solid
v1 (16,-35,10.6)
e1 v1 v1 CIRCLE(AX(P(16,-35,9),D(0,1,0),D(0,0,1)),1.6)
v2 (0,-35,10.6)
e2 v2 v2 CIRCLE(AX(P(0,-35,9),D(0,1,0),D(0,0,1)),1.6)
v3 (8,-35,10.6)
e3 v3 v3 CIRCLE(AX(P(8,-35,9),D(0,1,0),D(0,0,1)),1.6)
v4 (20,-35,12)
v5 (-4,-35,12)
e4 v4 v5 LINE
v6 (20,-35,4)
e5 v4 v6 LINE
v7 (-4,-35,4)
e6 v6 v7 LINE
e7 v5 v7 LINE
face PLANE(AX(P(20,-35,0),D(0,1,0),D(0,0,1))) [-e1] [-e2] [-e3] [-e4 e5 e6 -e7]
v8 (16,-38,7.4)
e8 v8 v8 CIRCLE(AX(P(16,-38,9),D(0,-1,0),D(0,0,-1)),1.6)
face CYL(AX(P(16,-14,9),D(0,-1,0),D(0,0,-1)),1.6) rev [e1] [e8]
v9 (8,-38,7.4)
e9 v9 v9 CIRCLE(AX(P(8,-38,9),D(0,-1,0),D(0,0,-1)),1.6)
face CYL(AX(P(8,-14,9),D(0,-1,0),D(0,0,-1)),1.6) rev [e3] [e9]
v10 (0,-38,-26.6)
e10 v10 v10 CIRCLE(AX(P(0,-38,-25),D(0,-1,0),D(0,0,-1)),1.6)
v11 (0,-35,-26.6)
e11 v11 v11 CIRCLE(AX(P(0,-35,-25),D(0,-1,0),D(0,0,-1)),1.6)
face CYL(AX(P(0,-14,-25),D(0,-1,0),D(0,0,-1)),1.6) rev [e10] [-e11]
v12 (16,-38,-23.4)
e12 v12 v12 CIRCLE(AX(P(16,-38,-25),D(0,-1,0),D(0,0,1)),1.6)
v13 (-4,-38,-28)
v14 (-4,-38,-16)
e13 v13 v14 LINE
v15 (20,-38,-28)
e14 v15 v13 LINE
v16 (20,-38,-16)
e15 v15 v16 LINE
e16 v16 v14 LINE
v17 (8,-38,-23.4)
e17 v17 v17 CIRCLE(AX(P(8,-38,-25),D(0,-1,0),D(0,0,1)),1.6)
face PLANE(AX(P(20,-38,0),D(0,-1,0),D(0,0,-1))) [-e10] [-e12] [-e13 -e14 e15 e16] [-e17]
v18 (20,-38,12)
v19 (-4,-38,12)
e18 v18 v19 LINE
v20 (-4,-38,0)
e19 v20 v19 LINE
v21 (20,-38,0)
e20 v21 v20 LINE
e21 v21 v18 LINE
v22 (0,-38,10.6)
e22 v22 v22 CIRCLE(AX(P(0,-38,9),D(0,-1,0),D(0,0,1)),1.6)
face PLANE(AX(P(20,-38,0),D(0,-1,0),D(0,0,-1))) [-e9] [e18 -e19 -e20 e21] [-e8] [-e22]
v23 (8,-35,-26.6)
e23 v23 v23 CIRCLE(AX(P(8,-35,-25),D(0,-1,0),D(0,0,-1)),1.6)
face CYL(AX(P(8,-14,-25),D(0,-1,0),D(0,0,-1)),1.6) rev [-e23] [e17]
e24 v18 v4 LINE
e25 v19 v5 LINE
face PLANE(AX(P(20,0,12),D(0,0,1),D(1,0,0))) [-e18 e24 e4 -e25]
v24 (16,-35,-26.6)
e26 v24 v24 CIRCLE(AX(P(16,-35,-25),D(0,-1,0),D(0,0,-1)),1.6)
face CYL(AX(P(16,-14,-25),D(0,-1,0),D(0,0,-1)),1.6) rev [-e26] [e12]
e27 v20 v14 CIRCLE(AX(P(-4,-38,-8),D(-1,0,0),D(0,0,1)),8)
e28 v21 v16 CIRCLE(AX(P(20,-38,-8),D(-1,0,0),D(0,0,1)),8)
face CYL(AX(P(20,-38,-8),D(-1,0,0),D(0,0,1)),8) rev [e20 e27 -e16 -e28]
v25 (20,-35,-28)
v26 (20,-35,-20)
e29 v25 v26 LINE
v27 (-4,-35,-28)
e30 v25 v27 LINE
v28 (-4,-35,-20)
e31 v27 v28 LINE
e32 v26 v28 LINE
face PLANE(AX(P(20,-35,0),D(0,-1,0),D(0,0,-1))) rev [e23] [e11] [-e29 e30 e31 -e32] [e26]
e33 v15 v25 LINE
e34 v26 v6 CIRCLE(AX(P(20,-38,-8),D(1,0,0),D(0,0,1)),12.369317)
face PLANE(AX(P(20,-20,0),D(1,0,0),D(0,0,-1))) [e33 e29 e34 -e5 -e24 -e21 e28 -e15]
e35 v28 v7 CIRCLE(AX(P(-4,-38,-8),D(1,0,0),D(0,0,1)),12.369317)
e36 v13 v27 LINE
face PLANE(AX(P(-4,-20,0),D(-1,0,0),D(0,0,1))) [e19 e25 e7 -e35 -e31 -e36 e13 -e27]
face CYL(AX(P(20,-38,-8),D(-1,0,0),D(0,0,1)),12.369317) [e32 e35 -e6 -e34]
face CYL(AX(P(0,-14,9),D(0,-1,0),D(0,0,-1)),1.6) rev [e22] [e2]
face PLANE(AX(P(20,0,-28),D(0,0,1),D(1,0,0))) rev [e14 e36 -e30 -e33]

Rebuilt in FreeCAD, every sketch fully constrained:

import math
import FreeCAD as App
import Part
import Sketcher
from FreeCAD import Vector


def add_polygon(sketch, points):
    """Adds a closed chain of lines whose ends are joined by coincident constraints."""
    first, n = sketch.GeometryCount, len(points)
    for a, b in zip(points, points[1:] + points[:1]):
        sketch.addGeometry(Part.LineSegment(App.Vector(*a, 0), App.Vector(*b, 0)), False)
    for i in range(n):
        sketch.addConstraint(Sketcher.Constraint("Coincident", first + i, 2, first + (i + 1) % n, 1))

doc = App.newDocument("Part")
body = doc.addObject("PartDesign::Body", "Body")

# Sketch on XZ plane
sketch1 = doc.addObject("Sketcher::SketchObject", "Sketch")
body.addObject(sketch1)
sketch1.AttachmentSupport = (doc.XZ_Plane, [""])
sketch1.MapMode = "FlatFace"
add_polygon(sketch1, [(-4, -20), (-4, 4), (20, 4), (20, -20)])  # lines 0-3
add_polygon(sketch1, [(16, 0), (0, 0), (0, -16), (16, -16)])  # lines 4-7
sketch1.addConstraint(Sketcher.Constraint("Vertical", 0))
sketch1.addConstraint(Sketcher.Constraint("Horizontal", 1))
sketch1.addConstraint(Sketcher.Constraint("Vertical", 2))
sketch1.addConstraint(Sketcher.Constraint("Horizontal", 3))
sketch1.addConstraint(Sketcher.Constraint("Horizontal", 4))
sketch1.addConstraint(Sketcher.Constraint("Vertical", 5))
sketch1.addConstraint(Sketcher.Constraint("Horizontal", 6))
sketch1.addConstraint(Sketcher.Constraint("Vertical", 7))
sketch1.addConstraint(Sketcher.Constraint("Coincident", 4, 2, -1, 1))
sketch1.addConstraint(Sketcher.Constraint("Equal", 3, 0))
sketch1.addConstraint(Sketcher.Constraint("Equal", 6, 5))
sketch1.addConstraint(Sketcher.Constraint("DistanceX", 1, 1, 1, 2, 24.0))
sketch1.addConstraint(Sketcher.Constraint("DistanceX", 4, 2, 4, 1, 16.0))
sketch1.addConstraint(Sketcher.Constraint("DistanceX", 0, 2, -1, 1, 4.0))
sketch1.addConstraint(Sketcher.Constraint("DistanceY", -1, 1, 0, 2, 4.0))
pad1 = doc.addObject("PartDesign::Pad", "Pad")
body.addObject(pad1)
pad1.Profile = sketch1
pad1.Length = 20

# Sketch on XZ plane
sketch2 = doc.addObject("Sketcher::SketchObject", "Sketch001")
body.addObject(sketch2)
sketch2.AttachmentSupport = (doc.XZ_Plane, [""])
sketch2.MapMode = "FlatFace"
sketch2.AttachmentOffset = App.Placement(Vector(0, 0, 20), App.Rotation())
add_polygon(sketch2, [(-4, 4), (-4, -20), (20, -20), (20, 4)])  # lines 0-3
sketch2.addConstraint(Sketcher.Constraint("Vertical", 0))
sketch2.addConstraint(Sketcher.Constraint("Horizontal", 1))
sketch2.addConstraint(Sketcher.Constraint("Vertical", 2))
sketch2.addConstraint(Sketcher.Constraint("Horizontal", 3))
sketch2.addConstraint(Sketcher.Constraint("Equal", 3, 0))
sketch2.addConstraint(Sketcher.Constraint("DistanceX", 1, 1, 1, 2, 24.0))
sketch2.addConstraint(Sketcher.Constraint("DistanceX", 0, 2, -1, 1, 4.0))
sketch2.addConstraint(Sketcher.Constraint("DistanceY", 0, 2, -1, 1, 20.0))
pad2 = doc.addObject("PartDesign::Pad", "Pad001")
body.addObject(pad2)
pad2.Profile = sketch2
pad2.Length = 10

# Sketch on YZ plane
sketch3 = doc.addObject("Sketcher::SketchObject", "Sketch002")
body.addObject(sketch3)
sketch3.AttachmentSupport = (doc.YZ_Plane, [""])
sketch3.MapMode = "FlatFace"
sketch3.AttachmentOffset = App.Placement(Vector(0, 0, -4), App.Rotation())
sketch3.addGeometry(Part.LineSegment(Vector(-38, 12, 0), Vector(-35, 12, 0)), False)
sketch3.addGeometry(Part.LineSegment(Vector(-35, 12, 0), Vector(-35, 4, 0)), False)
sketch3.addGeometry(Part.LineSegment(Vector(-35, 4, 0), Vector(-30, 4, 0)), False)
sketch3.addGeometry(Part.LineSegment(Vector(-30, 4, 0), Vector(-30, -8, 0)), False)
sketch3.addGeometry(Part.ArcOfCircle(Part.Circle(Vector(-38, -8, 0), Vector(0, 0, 1), 8), math.radians(0), math.radians(90)), False)
sketch3.addGeometry(Part.LineSegment(Vector(-38, 0, 0), Vector(-38, 12, 0)), False)
sketch3.addGeometry(Part.ArcOfCircle(Part.Circle(Vector(-38, -8, 0), Vector(0, 0, 1), 8), math.radians(-90), math.radians(0)), False)
sketch3.addGeometry(Part.LineSegment(Vector(-30, -8, 0), Vector(-30, -20, 0)), False)
sketch3.addGeometry(Part.LineSegment(Vector(-30, -20, 0), Vector(-35, -20, 0)), False)
sketch3.addGeometry(Part.LineSegment(Vector(-35, -20, 0), Vector(-35, -28, 0)), False)
sketch3.addGeometry(Part.LineSegment(Vector(-35, -28, 0), Vector(-38, -28, 0)), False)
sketch3.addGeometry(Part.LineSegment(Vector(-38, -28, 0), Vector(-38, -16, 0)), False)
sketch3.addConstraint(Sketcher.Constraint("Coincident", 0, 2, 1, 1))
sketch3.addConstraint(Sketcher.Constraint("Coincident", 1, 2, 2, 1))
sketch3.addConstraint(Sketcher.Constraint("Coincident", 2, 2, 3, 1))
sketch3.addConstraint(Sketcher.Constraint("Tangent", 3, 2, 4, 1))
sketch3.addConstraint(Sketcher.Constraint("Coincident", 4, 2, 5, 1))
sketch3.addConstraint(Sketcher.Constraint("Coincident", 5, 2, 0, 1))
sketch3.addConstraint(Sketcher.Constraint("Tangent", 6, 2, 7, 1))
sketch3.addConstraint(Sketcher.Constraint("Coincident", 7, 2, 8, 1))
sketch3.addConstraint(Sketcher.Constraint("Coincident", 8, 2, 9, 1))
sketch3.addConstraint(Sketcher.Constraint("Coincident", 9, 2, 10, 1))
sketch3.addConstraint(Sketcher.Constraint("Coincident", 10, 2, 11, 1))
sketch3.addConstraint(Sketcher.Constraint("Coincident", 11, 2, 6, 1))
sketch3.addConstraint(Sketcher.Constraint("Horizontal", 0))
sketch3.addConstraint(Sketcher.Constraint("Vertical", 1))
sketch3.addConstraint(Sketcher.Constraint("Horizontal", 2))
sketch3.addConstraint(Sketcher.Constraint("Vertical", 3))
sketch3.addConstraint(Sketcher.Constraint("Vertical", 5))
sketch3.addConstraint(Sketcher.Constraint("Vertical", 7))
sketch3.addConstraint(Sketcher.Constraint("Horizontal", 8))
sketch3.addConstraint(Sketcher.Constraint("Vertical", 9))
sketch3.addConstraint(Sketcher.Constraint("Horizontal", 10))
sketch3.addConstraint(Sketcher.Constraint("Vertical", 11))
sketch3.addConstraint(Sketcher.Constraint("Coincident", 6, 3, 4, 3))
sketch3.addConstraint(Sketcher.Constraint("Equal", 4, 6))
sketch3.addConstraint(Sketcher.Constraint("PointOnObject", 4, 2, -1))
sketch3.addConstraint(Sketcher.Constraint("Vertical", 6, 3, 4, 2))
sketch3.addConstraint(Sketcher.Constraint("Vertical", 1, 2, 8, 2))
sketch3.addConstraint(Sketcher.Constraint("Vertical", 5, 2, 10, 2))
sketch3.addConstraint(Sketcher.Constraint("Equal", 3, 5))
sketch3.addConstraint(Sketcher.Constraint("Equal", 5, 7))
sketch3.addConstraint(Sketcher.Constraint("Equal", 1, 9))
sketch3.addConstraint(Sketcher.Constraint("Radius", 4, 8.0))
sketch3.addConstraint(Sketcher.Constraint("DistanceX", 0, 1, 0, 2, 3.0))
sketch3.addConstraint(Sketcher.Constraint("DistanceY", 3, 2, 3, 1, 12.0))
sketch3.addConstraint(Sketcher.Constraint("DistanceX", 4, 3, -1, 1, 38.0))
pad3 = doc.addObject("PartDesign::Pad", "Pad002")
body.addObject(pad3)
pad3.Profile = sketch3
pad3.Length = 24

# Sketch on XZ plane
sketch4 = doc.addObject("Sketcher::SketchObject", "Sketch003")
body.addObject(sketch4)
sketch4.AttachmentSupport = (doc.XZ_Plane, [""])
sketch4.MapMode = "FlatFace"
sketch4.AttachmentOffset = App.Placement(Vector(0, 0, 38), App.Rotation())
sketch4.addGeometry(Part.Circle(Vector(8, 9, 0), Vector(0, 0, 1), 1.6), False)
sketch4.addGeometry(Part.Circle(Vector(16, 9, 0), Vector(0, 0, 1), 1.6), False)
sketch4.addGeometry(Part.Circle(Vector(0, 9, 0), Vector(0, 0, 1), 1.6), False)
sketch4.addGeometry(Part.Circle(Vector(0, -25, 0), Vector(0, 0, 1), 1.6), False)
sketch4.addGeometry(Part.Circle(Vector(8, -25, 0), Vector(0, 0, 1), 1.6), False)
sketch4.addGeometry(Part.Circle(Vector(16, -25, 0), Vector(0, 0, 1), 1.6), False)
sketch4.addConstraint(Sketcher.Constraint("Equal", 0, 1))
sketch4.addConstraint(Sketcher.Constraint("Equal", 1, 2))
sketch4.addConstraint(Sketcher.Constraint("Equal", 2, 3))
sketch4.addConstraint(Sketcher.Constraint("Equal", 3, 4))
sketch4.addConstraint(Sketcher.Constraint("Equal", 4, 5))
sketch4.addConstraint(Sketcher.Constraint("PointOnObject", 2, 3, -2))
sketch4.addConstraint(Sketcher.Constraint("PointOnObject", 3, 3, -2))
sketch4.addConstraint(Sketcher.Constraint("Horizontal", 0, 3, 1, 3))
sketch4.addConstraint(Sketcher.Constraint("Horizontal", 1, 3, 2, 3))
sketch4.addConstraint(Sketcher.Constraint("Horizontal", 3, 3, 4, 3))
sketch4.addConstraint(Sketcher.Constraint("Horizontal", 4, 3, 5, 3))
sketch4.addConstraint(Sketcher.Constraint("Vertical", 0, 3, 4, 3))
sketch4.addConstraint(Sketcher.Constraint("Vertical", 1, 3, 5, 3))
sketch4.addConstraint(Sketcher.Constraint("Diameter", 0, 3.2))
sketch4.addConstraint(Sketcher.Constraint("DistanceX", -1, 1, 0, 3, 8.0))
sketch4.addConstraint(Sketcher.Constraint("DistanceY", -1, 1, 0, 3, 9.0))
sketch4.addConstraint(Sketcher.Constraint("DistanceX", -1, 1, 1, 3, 16.0))
sketch4.addConstraint(Sketcher.Constraint("DistanceY", 3, 3, -1, 1, 25.0))
pocket1 = doc.addObject("PartDesign::Pocket", "Pocket")
body.addObject(pocket1)
pocket1.Profile = sketch4
pocket1.Length = 24

# Sketch on YZ plane
sketch5 = doc.addObject("Sketcher::SketchObject", "Sketch004")
body.addObject(sketch5)
sketch5.AttachmentSupport = (doc.YZ_Plane, [""])
sketch5.MapMode = "FlatFace"
sketch5.AttachmentOffset = App.Placement(Vector(0, 0, -4), App.Rotation())
sketch5.addGeometry(Part.LineSegment(Vector(0, -20, 0), Vector(-35, -20, 0)), False)
sketch5.addGeometry(Part.ArcOfCircle(Part.Circle(Vector(-38, -8, 0), Vector(0, 0, 1), 12.369317), math.radians(-75.963757), math.radians(75.963757)), False)
sketch5.addGeometry(Part.LineSegment(Vector(-35, 4, 0), Vector(0, 4, 0)), False)
sketch5.addGeometry(Part.LineSegment(Vector(0, 4, 0), Vector(0, -20, 0)), False)
sketch5.addConstraint(Sketcher.Constraint("Coincident", 0, 2, 1, 1))
sketch5.addConstraint(Sketcher.Constraint("Coincident", 1, 2, 2, 1))
sketch5.addConstraint(Sketcher.Constraint("Coincident", 2, 2, 3, 1))
sketch5.addConstraint(Sketcher.Constraint("Coincident", 3, 2, 0, 1))
sketch5.addConstraint(Sketcher.Constraint("Horizontal", 0))
sketch5.addConstraint(Sketcher.Constraint("Horizontal", 2))
sketch5.addConstraint(Sketcher.Constraint("Vertical", 3))
sketch5.addConstraint(Sketcher.Constraint("PointOnObject", 2, 2, -2))
sketch5.addConstraint(Sketcher.Constraint("Vertical", 0, 2, 1, 2))
sketch5.addConstraint(Sketcher.Constraint("DistanceX", 0, 2, 0, 1, 35.0))
sketch5.addConstraint(Sketcher.Constraint("DistanceY", 3, 2, 3, 1, 24.0))
sketch5.addConstraint(Sketcher.Constraint("DistanceX", 1, 3, -1, 1, 38.0))
sketch5.addConstraint(Sketcher.Constraint("DistanceY", 1, 3, -1, 1, 8.0))
pocket2 = doc.addObject("PartDesign::Pocket", "Pocket001")
body.addObject(pocket2)
pocket2.Profile = sketch5
pocket2.Length = 24
pocket2.Reversed = True

doc.recompute()
